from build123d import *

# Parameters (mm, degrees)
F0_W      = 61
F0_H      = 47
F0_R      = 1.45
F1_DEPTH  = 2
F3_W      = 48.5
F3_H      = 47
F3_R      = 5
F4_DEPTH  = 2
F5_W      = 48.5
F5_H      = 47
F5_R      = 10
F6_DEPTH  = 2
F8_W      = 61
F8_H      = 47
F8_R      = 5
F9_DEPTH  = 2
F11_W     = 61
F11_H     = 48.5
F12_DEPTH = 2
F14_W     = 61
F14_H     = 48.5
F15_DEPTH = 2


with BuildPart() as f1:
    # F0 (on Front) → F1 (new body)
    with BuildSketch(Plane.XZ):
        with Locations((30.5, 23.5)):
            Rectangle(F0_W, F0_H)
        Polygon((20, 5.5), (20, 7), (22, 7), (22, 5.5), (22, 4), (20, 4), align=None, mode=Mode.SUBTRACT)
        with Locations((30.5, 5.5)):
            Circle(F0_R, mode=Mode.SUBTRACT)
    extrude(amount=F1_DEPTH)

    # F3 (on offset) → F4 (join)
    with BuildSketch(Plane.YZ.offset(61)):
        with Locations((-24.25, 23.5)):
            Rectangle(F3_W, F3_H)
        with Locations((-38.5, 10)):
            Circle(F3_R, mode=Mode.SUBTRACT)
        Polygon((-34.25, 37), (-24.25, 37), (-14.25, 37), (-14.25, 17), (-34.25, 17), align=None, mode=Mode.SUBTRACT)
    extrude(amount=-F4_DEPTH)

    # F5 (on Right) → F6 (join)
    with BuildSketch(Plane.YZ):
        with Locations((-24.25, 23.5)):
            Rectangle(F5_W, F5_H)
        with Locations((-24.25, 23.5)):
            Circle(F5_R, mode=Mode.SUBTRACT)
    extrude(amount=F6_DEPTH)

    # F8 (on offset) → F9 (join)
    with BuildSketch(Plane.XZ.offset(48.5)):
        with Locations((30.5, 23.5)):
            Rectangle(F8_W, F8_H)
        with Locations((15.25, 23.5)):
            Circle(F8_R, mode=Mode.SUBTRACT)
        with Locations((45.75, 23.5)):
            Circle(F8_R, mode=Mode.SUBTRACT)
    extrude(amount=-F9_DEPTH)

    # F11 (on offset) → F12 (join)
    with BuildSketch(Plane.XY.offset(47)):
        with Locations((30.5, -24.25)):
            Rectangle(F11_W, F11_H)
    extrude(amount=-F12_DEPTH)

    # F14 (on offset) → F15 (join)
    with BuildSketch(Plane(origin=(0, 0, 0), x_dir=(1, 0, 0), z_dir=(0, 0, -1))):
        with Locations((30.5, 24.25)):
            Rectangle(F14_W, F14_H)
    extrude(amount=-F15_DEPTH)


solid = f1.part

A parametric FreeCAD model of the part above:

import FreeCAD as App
import Part
import Sketcher
from FreeCAD import Vector
Q = App.Units.Quantity


def add_polygon(sketch, points):
    """Adds a closed chain of lines whose ends are joined by coincident constraints."""
    first, n = sketch.GeometryCount, len(points)
    for a, b in zip(points, points[1:] + points[:1]):
        sketch.addGeometry(Part.LineSegment(App.Vector(*a, 0), App.Vector(*b, 0)), False)
    for i in range(n):
        sketch.addConstraint(Sketcher.Constraint("Coincident", first + i, 2, first + (i + 1) % n, 1))

doc = App.newDocument("Part")
body = doc.addObject("PartDesign::Body", "Body")

# Sketch on XZ plane
sketch1 = body.newObject("Sketcher::SketchObject", "Sketch")
sketch1.AttachmentSupport = (doc.getObject("XZ_Plane"), [""])
sketch1.MapMode = "FlatFace"
add_polygon(sketch1, [(0, 47), (0, 0), (61, 0), (61, 47)])  # lines 0-3
add_polygon(sketch1, [(20, 4), (20, 7), (22, 7), (22, 4)])  # lines 4-7
sketch1.addGeometry(Part.Circle(Vector(30.5, 5.5, 0), Vector(0, 0, 1), 1.4), False)  # 8
sketch1.addConstraint([
    Sketcher.Constraint("Vertical", 0),
    Sketcher.Constraint("Horizontal", 1),
    Sketcher.Constraint("Vertical", 2),
    Sketcher.Constraint("Horizontal", 3),
    Sketcher.Constraint("Vertical", 4),
    Sketcher.Constraint("Horizontal", 5),
    Sketcher.Constraint("Vertical", 6),
    Sketcher.Constraint("Horizontal", 7),
    Sketcher.Constraint("Coincident", 0, 2, -1, 1),
    Sketcher.Constraint("Diameter", 8, Q("2.9 mm")),
    Sketcher.Constraint("DistanceX", 1, 1, 1, 2, Q("61 mm")),
    Sketcher.Constraint("DistanceX", 5, 1, 5, 2, Q("2 mm")),
    Sketcher.Constraint("DistanceY", 0, 2, 0, 1, Q("47 mm")),
    Sketcher.Constraint("DistanceY", 4, 1, 4, 2, Q("3 mm")),
    Sketcher.Constraint("DistanceX", -1, 1, 4, 2, Q("20 mm")),
    Sketcher.Constraint("DistanceY", -1, 1, 4, 2, Q("7 mm")),
    Sketcher.Constraint("DistanceX", -1, 1, 8, 3, Q("30.5 mm")),
    Sketcher.Constraint("DistanceY", -1, 1, 8, 3, Q("5.5 mm")),
])
pad1 = body.newObject("PartDesign::Pad", "Pad")
pad1.Profile = sketch1
pad1.Length = 2

# Sketch on YZ plane
sketch2 = body.newObject("Sketcher::SketchObject", "Sketch001")
sketch2.AttachmentSupport = (doc.getObject("YZ_Plane"), [""])
sketch2.MapMode = "FlatFace"
sketch2.AttachmentOffset = App.Placement(Vector(0, 0, 61), App.Rotation())
add_polygon(sketch2, [(-48, 47), (-48, 0), (0, 0), (0, 47)])  # lines 0-3
sketch2.addGeometry(Part.Circle(Vector(-38, 10, 0), Vector(0, 0, 1), 5), False)  # 4
add_polygon(sketch2, [(-34, 17), (-34, 37), (-14, 37), (-14, 17)])  # lines 5-8
sketch2.addConstraint([
    Sketcher.Constraint("Vertical", 0),
    Sketcher.Constraint("Horizontal", 1),
    Sketcher.Constraint("Vertical", 2),
    Sketcher.Constraint("Horizontal", 3),
    Sketcher.Constraint("Vertical", 5),
    Sketcher.Constraint("Horizontal", 6),
    Sketcher.Constraint("Vertical", 7),
    Sketcher.Constraint("Horizontal", 8),
    Sketcher.Constraint("Coincident", 1, 2, -1, 1),
    Sketcher.Constraint("Equal", 8, 5),
    Sketcher.Constraint("Diameter", 4, Q("10 mm")),
    Sketcher.Constraint("DistanceX", 6, 1, 6, 2, Q("20 mm")),
    Sketcher.Constraint("DistanceY", 0, 2, 0, 1, Q("47 mm")),
    Sketcher.Constraint("DistanceX", 1, 1, 1, 2, Q("48.5 mm")),
    Sketcher.Constraint("DistanceY", -1, 1, 4, 3, Q("10 mm")),
    Sketcher.Constraint("DistanceY", -1, 1, 5, 2, Q("37 mm")),
    Sketcher.Constraint("DistanceX", 0, 2, 4, 3, Q("10 mm")),
    Sketcher.Constraint("DistanceX", 5, 2, -1, 1, Q("34.25 mm")),
])
pad2 = body.newObject("PartDesign::Pad", "Pad001")
pad2.Profile = sketch2
pad2.Length = 2
pad2.Reversed = True

# Sketch on YZ plane
sketch3 = body.newObject("Sketcher::SketchObject", "Sketch002")
sketch3.AttachmentSupport = (doc.getObject("YZ_Plane"), [""])
sketch3.MapMode = "FlatFace"
add_polygon(sketch3, [(-48, 47), (-48, 0), (0, 0), (0, 47)])  # lines 0-3
sketch3.addGeometry(Part.Circle(Vector(-24, 24, 0), Vector(0, 0, 1), 10), False)  # 4
sketch3.addConstraint([
    Sketcher.Constraint("Vertical", 0),
    Sketcher.Constraint("Horizontal", 1),
    Sketcher.Constraint("Vertical", 2),
    Sketcher.Constraint("Horizontal", 3),
    Sketcher.Constraint("Coincident", 1, 2, -1, 1),
    Sketcher.Constraint("Diameter", 4, Q("20 mm")),
    Sketcher.Constraint("DistanceY", 0, 2, 0, 1, Q("47 mm")),
    Sketcher.Constraint("DistanceX", 1, 1, 1, 2, Q("48.5 mm")),
    Sketcher.Constraint("DistanceY", -1, 1, 4, 3, Q("23.5 mm")),
    Sketcher.Constraint("DistanceX", 4, 3, -1, 1, Q("24.25 mm")),
])
pad3 = body.newObject("PartDesign::Pad", "Pad002")
pad3.Profile = sketch3
pad3.Length = 2

# Sketch on XZ plane
sketch4 = body.newObject("Sketcher::SketchObject", "Sketch003")
sketch4.AttachmentSupport = (doc.getObject("XZ_Plane"), [""])
sketch4.MapMode = "FlatFace"
sketch4.AttachmentOffset = App.Placement(Vector(0, 0, 48.5), App.Rotation())
add_polygon(sketch4, [(0, 47), (0, 0), (61, 0), (61, 47)])  # lines 0-3
sketch4.addGeometry(Part.Circle(Vector(15, 24, 0), Vector(0, 0, 1), 5), False)  # 4
sketch4.addGeometry(Part.Circle(Vector(46, 24, 0), Vector(0, 0, 1), 5), False)  # 5
sketch4.addConstraint([
    Sketcher.Constraint("Vertical", 0),
    Sketcher.Constraint("Horizontal", 1),
    Sketcher.Constraint("Vertical", 2),
    Sketcher.Constraint("Horizontal", 3),
    Sketcher.Constraint("Coincident", 0, 2, -1, 1),
    Sketcher.Constraint("Equal", 4, 5),
    Sketcher.Constraint("Horizontal", 4, 3, 5, 3),
    Sketcher.Constraint("Diameter", 4, Q("10 mm")),
    Sketcher.Constraint("DistanceX", 1, 1, 1, 2, Q("61 mm")),
    Sketcher.Constraint("DistanceY", 0, 2, 0, 1, Q("47 mm")),
    Sketcher.Constraint("DistanceY", -1, 1, 4, 3, Q("23.5 mm")),
    Sketcher.Constraint("DistanceX", 4, 3, 5, 3, Q("30.5 mm")),
    Sketcher.Constraint("DistanceX", -1, 1, 4, 3, Q("15.25 mm")),
])
pad4 = body.newObject("PartDesign::Pad", "Pad003")
pad4.Profile = sketch4
pad4.Length = 2
pad4.Reversed = True

# Sketch on XY plane
sketch5 = body.newObject("Sketcher::SketchObject", "Sketch004")
sketch5.AttachmentSupport = (doc.getObject("XY_Plane"), [""])
sketch5.MapMode = "FlatFace"
sketch5.AttachmentOffset = App.Placement(Vector(0, 0, 47), App.Rotation())
add_polygon(sketch5, [(0, 0), (0, -48), (61, -48), (61, 0)])  # lines 0-3
sketch5.addConstraint([
    Sketcher.Constraint("Vertical", 0),
    Sketcher.Constraint("Horizontal", 1),
    Sketcher.Constraint("Vertical", 2),
    Sketcher.Constraint("Horizontal", 3),
    Sketcher.Constraint("Coincident", 3, 2, -1, 1),
    Sketcher.Constraint("DistanceX", 1, 1, 1, 2, Q("61 mm")),
    Sketcher.Constraint("DistanceY", 0, 2, 0, 1, Q("48.5 mm")),
])
pad5 = body.newObject("PartDesign::Pad", "Pad004")
pad5.Profile = sketch5
pad5.Length = 2
pad5.Reversed = True

# Sketch on XY plane
sketch6 = body.newObject("Sketcher::SketchObject", "Sketch005")
sketch6.AttachmentSupport = (doc.getObject("XY_Plane"), [""])
sketch6.MapMode = "FlatFace"
add_polygon(sketch6, [(0, -48), (0, 0), (61, 0), (61, -48)])  # lines 0-3
sketch6.addConstraint([
    Sketcher.Constraint("Vertical", 0),
    Sketcher.Constraint("Horizontal", 1),
    Sketcher.Constraint("Vertical", 2),
    Sketcher.Constraint("Horizontal", 3),
    Sketcher.Constraint("Coincident", 0, 2, -1, 1),
    Sketcher.Constraint("DistanceX", 1, 1, 1, 2, Q("61 mm")),
    Sketcher.Constraint("DistanceY", 0, 1, 0, 2, Q("48.5 mm")),
])
pad6 = body.newObject("PartDesign::Pad", "Pad005")
pad6.Profile = sketch6
pad6.Length = 2

doc.recompute()
